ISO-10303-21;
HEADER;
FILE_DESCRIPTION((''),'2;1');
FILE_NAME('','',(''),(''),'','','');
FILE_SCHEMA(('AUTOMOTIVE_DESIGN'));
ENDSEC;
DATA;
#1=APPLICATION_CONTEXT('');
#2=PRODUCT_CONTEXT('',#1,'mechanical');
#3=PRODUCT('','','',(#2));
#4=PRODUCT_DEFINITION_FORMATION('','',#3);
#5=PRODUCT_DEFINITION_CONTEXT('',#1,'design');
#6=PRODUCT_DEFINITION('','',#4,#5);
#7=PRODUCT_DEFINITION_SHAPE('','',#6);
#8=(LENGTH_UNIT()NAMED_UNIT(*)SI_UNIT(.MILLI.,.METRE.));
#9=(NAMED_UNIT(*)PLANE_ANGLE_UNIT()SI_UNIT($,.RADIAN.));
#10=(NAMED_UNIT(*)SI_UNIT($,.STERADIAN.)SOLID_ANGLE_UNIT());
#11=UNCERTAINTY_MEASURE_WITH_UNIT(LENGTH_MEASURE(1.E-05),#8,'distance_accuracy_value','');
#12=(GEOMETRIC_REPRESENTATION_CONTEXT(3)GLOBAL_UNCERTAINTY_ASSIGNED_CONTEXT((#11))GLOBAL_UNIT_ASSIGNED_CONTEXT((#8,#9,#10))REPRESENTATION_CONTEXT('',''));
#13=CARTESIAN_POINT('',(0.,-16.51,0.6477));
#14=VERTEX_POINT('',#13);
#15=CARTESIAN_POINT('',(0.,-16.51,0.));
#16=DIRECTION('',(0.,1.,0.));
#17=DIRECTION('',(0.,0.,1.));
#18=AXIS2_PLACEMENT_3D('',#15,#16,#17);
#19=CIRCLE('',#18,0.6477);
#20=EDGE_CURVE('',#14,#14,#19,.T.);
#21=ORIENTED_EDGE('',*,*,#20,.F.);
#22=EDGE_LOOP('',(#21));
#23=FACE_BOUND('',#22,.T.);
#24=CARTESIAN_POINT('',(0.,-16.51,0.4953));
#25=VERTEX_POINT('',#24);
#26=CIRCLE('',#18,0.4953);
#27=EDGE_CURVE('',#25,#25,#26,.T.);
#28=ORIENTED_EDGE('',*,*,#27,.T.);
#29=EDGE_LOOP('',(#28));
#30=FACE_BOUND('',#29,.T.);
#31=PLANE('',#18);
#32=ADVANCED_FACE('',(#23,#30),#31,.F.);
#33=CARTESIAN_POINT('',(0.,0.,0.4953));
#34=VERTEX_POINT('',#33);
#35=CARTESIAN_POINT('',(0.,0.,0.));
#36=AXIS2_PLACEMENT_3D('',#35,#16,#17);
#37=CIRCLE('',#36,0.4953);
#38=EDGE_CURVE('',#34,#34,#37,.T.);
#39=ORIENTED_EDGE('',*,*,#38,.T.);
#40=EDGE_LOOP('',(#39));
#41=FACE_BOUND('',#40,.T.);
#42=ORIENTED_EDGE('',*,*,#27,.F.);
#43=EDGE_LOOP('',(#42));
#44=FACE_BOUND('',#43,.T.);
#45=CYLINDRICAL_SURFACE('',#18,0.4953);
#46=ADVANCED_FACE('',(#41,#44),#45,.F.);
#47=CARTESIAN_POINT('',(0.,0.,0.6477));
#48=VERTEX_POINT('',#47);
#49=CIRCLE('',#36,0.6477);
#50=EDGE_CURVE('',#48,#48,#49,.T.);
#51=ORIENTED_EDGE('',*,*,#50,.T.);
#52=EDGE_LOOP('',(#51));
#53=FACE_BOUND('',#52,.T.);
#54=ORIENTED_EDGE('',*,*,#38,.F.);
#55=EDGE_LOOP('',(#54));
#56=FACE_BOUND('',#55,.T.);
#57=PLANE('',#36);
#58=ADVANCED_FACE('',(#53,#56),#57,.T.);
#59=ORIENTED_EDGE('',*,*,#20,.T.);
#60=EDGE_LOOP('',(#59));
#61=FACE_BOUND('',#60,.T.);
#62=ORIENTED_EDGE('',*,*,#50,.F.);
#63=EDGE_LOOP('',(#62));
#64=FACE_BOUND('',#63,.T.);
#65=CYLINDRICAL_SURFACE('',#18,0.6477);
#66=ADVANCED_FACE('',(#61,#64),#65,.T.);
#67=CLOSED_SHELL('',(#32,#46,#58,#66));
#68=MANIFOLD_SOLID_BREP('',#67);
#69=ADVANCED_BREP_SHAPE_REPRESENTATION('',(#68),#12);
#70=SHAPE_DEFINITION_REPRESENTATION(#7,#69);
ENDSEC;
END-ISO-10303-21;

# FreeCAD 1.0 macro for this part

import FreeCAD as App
import Part
import Sketcher
Q = App.Units.Quantity

doc = App.newDocument("Part")
body = doc.addObject("PartDesign::Body", "Body")

sketch1 = doc.addObject("Sketcher::SketchObject", "Sketch")
body.addObject(sketch1)
sketch1.AttachmentSupport = (doc.XZ_Plane, [""])
sketch1.MapMode = "FlatFace"
sketch1.addGeometry(Part.Circle(App.Vector(0, 0, 0), App.Vector(0, 0, 1), 0.65), False)
sketch1.addGeometry(Part.Circle(App.Vector(0, 0, 0), App.Vector(0, 0, 1), 0.5), False)
sketch1.addConstraint(Sketcher.Constraint("Coincident", 0, 3, -1, 1))
sketch1.addConstraint(Sketcher.Constraint("Coincident", 1, 3, -1, 1))
sketch1.addConstraint(Sketcher.Constraint("Diameter", 0, Q("0.051 in")))
sketch1.addConstraint(Sketcher.Constraint("Diameter", 1, Q("0.039 in")))
pad1 = doc.addObject("PartDesign::Pad", "Pad")
body.addObject(pad1)
pad1.Profile = sketch1
pad1.Length = Q("0.65 in")

doc.recompute()
